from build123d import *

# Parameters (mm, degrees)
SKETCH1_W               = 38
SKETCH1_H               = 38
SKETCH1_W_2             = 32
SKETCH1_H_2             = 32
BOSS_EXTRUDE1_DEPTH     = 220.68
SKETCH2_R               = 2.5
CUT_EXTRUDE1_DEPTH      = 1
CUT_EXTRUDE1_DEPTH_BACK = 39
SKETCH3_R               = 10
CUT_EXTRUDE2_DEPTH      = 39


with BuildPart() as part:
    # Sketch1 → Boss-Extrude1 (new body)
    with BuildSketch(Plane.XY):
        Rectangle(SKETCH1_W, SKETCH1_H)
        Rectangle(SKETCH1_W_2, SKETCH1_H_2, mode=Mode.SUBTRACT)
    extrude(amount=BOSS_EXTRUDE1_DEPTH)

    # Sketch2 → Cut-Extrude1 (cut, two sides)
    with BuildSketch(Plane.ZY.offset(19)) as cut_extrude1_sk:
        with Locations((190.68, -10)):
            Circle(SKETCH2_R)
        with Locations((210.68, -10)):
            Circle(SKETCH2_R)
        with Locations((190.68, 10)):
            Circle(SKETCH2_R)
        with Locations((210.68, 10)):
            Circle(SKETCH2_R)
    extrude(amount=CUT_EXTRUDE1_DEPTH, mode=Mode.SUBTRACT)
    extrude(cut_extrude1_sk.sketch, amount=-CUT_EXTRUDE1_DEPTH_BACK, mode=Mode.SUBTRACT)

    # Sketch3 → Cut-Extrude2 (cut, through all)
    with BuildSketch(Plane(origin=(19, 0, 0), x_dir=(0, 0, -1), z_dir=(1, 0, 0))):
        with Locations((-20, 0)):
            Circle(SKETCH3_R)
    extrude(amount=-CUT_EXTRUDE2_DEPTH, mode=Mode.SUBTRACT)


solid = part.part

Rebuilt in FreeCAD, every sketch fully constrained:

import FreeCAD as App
import Part
import Sketcher
Q = App.Units.Quantity


def add_polygon(sketch, points):
    """Adds a closed chain of lines whose ends are joined by coincident constraints."""
    first, n = sketch.GeometryCount, len(points)
    for a, b in zip(points, points[1:] + points[:1]):
        sketch.addGeometry(Part.LineSegment(App.Vector(*a, 0), App.Vector(*b, 0)), False)
    for i in range(n):
        sketch.addConstraint(Sketcher.Constraint("Coincident", first + i, 2, first + (i + 1) % n, 1))

doc = App.newDocument("Part")
body = doc.addObject("PartDesign::Body", "Body")

# Sketch on XY plane
sketch1 = body.newObject("Sketcher::SketchObject", "Sketch")
sketch1.AttachmentSupport = (doc.getObject("XY_Plane"), [""])
sketch1.MapMode = "FlatFace"
add_polygon(sketch1, [(-19, 19), (-19, -19), (19, -19), (19, 19)])  # lines 0-3
add_polygon(sketch1, [(16, -16), (-16, -16), (-16, 16), (16, 16)])  # lines 4-7
sketch1.addConstraint([
    Sketcher.Constraint("Vertical", 0),
    Sketcher.Constraint("Horizontal", 1),
    Sketcher.Constraint("Vertical", 2),
    Sketcher.Constraint("Horizontal", 3),
    Sketcher.Constraint("Horizontal", 4),
    Sketcher.Constraint("Vertical", 5),
    Sketcher.Constraint("Horizontal", 6),
    Sketcher.Constraint("Vertical", 7),
    Sketcher.Constraint("Symmetric", 0, 2, 2, 2, -1, 1),
    Sketcher.Constraint("Symmetric", 4, 2, 6, 2, -1, 1),
    Sketcher.Constraint("Equal", 3, 0),
    Sketcher.Constraint("Equal", 6, 5),
    Sketcher.Constraint("DistanceX", 1, 1, 1, 2, Q("38 mm")),
    Sketcher.Constraint("DistanceX", 4, 2, 4, 1, Q("32 mm")),
])
pad1 = body.newObject("PartDesign::Pad", "Pad")
pad1.Profile = sketch1
pad1.Length = 220.68

# Sketch on YZ plane
sketch2 = body.newObject("Sketcher::SketchObject", "Sketch001")
sketch2.AttachmentSupport = (doc.getObject("YZ_Plane"), [""])
sketch2.MapMode = "FlatFace"
sketch2.AttachmentOffset = App.Placement(App.Vector(0, 0, -19), App.Rotation())
sketch2.addGeometry([
    Part.Circle(App.Vector(-10, 190.68, 0), App.Vector(0, 0, 1), 2.5),
    Part.Circle(App.Vector(-10, 210.68, 0), App.Vector(0, 0, 1), 2.5),
    Part.Circle(App.Vector(10, 190.68, 0), App.Vector(0, 0, 1), 2.5),
    Part.Circle(App.Vector(10, 210.68, 0), App.Vector(0, 0, 1), 2.5),
], False)
sketch2.addConstraint([
    Sketcher.Constraint("Equal", 0, 1),
    Sketcher.Constraint("Equal", 1, 2),
    Sketcher.Constraint("Equal", 2, 3),
    Sketcher.Constraint("Symmetric", 0, 3, 2, 3, -2),
    Sketcher.Constraint("Symmetric", 1, 3, 3, 3, -2),
    Sketcher.Constraint("Vertical", 0, 3, 1, 3),
    Sketcher.Constraint("Diameter", 0, Q("5 mm")),
    Sketcher.Constraint("DistanceX", 0, 3, -1, 1, Q("10 mm")),
    Sketcher.Constraint("DistanceY", 0, 3, 1, 3, Q("20 mm")),
    Sketcher.Constraint("DistanceY", -1, 1, 0, 3, Q("190.68 mm")),
])
pocket1 = body.newObject("PartDesign::Pocket", "Pocket")
pocket1.Profile = sketch2
pocket1.Type = "ThroughAll"
pocket1.Midplane = True

# Sketch on YZ plane
sketch3 = body.newObject("Sketcher::SketchObject", "Sketch002")
sketch3.AttachmentSupport = (doc.getObject("YZ_Plane"), [""])
sketch3.MapMode = "FlatFace"
sketch3.AttachmentOffset = App.Placement(App.Vector(0, 0, 19), App.Rotation())
sketch3.addGeometry(Part.Circle(App.Vector(0, 20, 0), App.Vector(0, 0, 1), 10), False)
sketch3.addConstraint([
    Sketcher.Constraint("PointOnObject", 0, 3, -2),
    Sketcher.Constraint("Diameter", 0, Q("20 mm")),
    Sketcher.Constraint("DistanceY", -1, 1, 0, 3, Q("20 mm")),
])
pocket2 = body.newObject("PartDesign::Pocket", "Pocket001")
pocket2.Profile = sketch3
pocket2.Type = "ThroughAll"

doc.recompute()
